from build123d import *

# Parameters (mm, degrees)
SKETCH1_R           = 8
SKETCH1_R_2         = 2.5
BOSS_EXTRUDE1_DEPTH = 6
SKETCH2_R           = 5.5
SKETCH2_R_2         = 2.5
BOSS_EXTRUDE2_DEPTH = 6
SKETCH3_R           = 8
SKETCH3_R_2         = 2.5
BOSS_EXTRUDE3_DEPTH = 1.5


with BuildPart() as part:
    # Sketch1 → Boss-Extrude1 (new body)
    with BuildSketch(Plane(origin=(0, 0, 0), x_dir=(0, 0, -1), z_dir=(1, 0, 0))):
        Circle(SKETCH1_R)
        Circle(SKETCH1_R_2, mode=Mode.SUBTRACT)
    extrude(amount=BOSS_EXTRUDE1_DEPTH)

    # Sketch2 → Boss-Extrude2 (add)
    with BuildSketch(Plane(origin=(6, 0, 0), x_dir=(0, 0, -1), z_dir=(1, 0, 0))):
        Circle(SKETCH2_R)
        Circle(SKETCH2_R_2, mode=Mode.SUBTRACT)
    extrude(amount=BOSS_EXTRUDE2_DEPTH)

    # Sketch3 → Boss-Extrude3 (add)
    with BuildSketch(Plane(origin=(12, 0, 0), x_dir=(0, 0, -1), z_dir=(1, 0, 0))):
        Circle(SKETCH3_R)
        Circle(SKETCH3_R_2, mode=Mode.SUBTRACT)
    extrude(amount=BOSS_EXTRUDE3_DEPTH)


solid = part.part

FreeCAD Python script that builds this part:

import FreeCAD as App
import Part
import Sketcher

doc = App.newDocument("Part")
body = doc.addObject("PartDesign::Body", "Body")

sketch1 = body.newObject("Sketcher::SketchObject", "Sketch")
sketch1.AttachmentSupport = (doc.getObject("YZ_Plane"), [""])
sketch1.MapMode = "FlatFace"
sketch1.addGeometry([
    Part.Circle(App.Vector(0, 0, 0), App.Vector(0, 0, 1), 8),
    Part.Circle(App.Vector(0, 0, 0), App.Vector(0, 0, 1), 2.5),
], False)
sketch1.addConstraint([
    Sketcher.Constraint("Coincident", 0, 3, -1, 1),
    Sketcher.Constraint("Coincident", 1, 3, -1, 1),
    Sketcher.Constraint("Diameter", 0, 16.0),
    Sketcher.Constraint("Diameter", 1, 5.0),
])
pad1 = body.newObject("PartDesign::Pad", "Pad")
pad1.Profile = sketch1
pad1.Length = 6

sketch2 = body.newObject("Sketcher::SketchObject", "Sketch001")
sketch2.AttachmentSupport = (doc.getObject("YZ_Plane"), [""])
sketch2.MapMode = "FlatFace"
sketch2.AttachmentOffset = App.Placement(App.Vector(0, 0, 6), App.Rotation())
sketch2.addGeometry([
    Part.Circle(App.Vector(0, 0, 0), App.Vector(0, 0, 1), 5.5),
    Part.Circle(App.Vector(0, 0, 0), App.Vector(0, 0, 1), 2.5),
], False)
sketch2.addConstraint([
    Sketcher.Constraint("Coincident", 0, 3, -1, 1),
    Sketcher.Constraint("Coincident", 1, 3, -1, 1),
    Sketcher.Constraint("Diameter", 0, 11.0),
    Sketcher.Constraint("Diameter", 1, 5.0),
])
pad2 = body.newObject("PartDesign::Pad", "Pad001")
pad2.Profile = sketch2
pad2.Length = 6

sketch3 = body.newObject("Sketcher::SketchObject", "Sketch002")
sketch3.AttachmentSupport = (doc.getObject("YZ_Plane"), [""])
sketch3.MapMode = "FlatFace"
sketch3.AttachmentOffset = App.Placement(App.Vector(0, 0, 12), App.Rotation())
sketch3.addGeometry([
    Part.Circle(App.Vector(0, 0, 0), App.Vector(0, 0, 1), 8),
    Part.Circle(App.Vector(0, 0, 0), App.Vector(0, 0, 1), 2.5),
], False)
sketch3.addConstraint([
    Sketcher.Constraint("Coincident", 0, 3, -1, 1),
    Sketcher.Constraint("Coincident", 1, 3, -1, 1),
    Sketcher.Constraint("Diameter", 0, 16.0),
    Sketcher.Constraint("Diameter", 1, 5.0),
])
pad3 = body.newObject("PartDesign::Pad", "Pad002")
pad3.Profile = sketch3
pad3.Length = 1.5

doc.recompute()
